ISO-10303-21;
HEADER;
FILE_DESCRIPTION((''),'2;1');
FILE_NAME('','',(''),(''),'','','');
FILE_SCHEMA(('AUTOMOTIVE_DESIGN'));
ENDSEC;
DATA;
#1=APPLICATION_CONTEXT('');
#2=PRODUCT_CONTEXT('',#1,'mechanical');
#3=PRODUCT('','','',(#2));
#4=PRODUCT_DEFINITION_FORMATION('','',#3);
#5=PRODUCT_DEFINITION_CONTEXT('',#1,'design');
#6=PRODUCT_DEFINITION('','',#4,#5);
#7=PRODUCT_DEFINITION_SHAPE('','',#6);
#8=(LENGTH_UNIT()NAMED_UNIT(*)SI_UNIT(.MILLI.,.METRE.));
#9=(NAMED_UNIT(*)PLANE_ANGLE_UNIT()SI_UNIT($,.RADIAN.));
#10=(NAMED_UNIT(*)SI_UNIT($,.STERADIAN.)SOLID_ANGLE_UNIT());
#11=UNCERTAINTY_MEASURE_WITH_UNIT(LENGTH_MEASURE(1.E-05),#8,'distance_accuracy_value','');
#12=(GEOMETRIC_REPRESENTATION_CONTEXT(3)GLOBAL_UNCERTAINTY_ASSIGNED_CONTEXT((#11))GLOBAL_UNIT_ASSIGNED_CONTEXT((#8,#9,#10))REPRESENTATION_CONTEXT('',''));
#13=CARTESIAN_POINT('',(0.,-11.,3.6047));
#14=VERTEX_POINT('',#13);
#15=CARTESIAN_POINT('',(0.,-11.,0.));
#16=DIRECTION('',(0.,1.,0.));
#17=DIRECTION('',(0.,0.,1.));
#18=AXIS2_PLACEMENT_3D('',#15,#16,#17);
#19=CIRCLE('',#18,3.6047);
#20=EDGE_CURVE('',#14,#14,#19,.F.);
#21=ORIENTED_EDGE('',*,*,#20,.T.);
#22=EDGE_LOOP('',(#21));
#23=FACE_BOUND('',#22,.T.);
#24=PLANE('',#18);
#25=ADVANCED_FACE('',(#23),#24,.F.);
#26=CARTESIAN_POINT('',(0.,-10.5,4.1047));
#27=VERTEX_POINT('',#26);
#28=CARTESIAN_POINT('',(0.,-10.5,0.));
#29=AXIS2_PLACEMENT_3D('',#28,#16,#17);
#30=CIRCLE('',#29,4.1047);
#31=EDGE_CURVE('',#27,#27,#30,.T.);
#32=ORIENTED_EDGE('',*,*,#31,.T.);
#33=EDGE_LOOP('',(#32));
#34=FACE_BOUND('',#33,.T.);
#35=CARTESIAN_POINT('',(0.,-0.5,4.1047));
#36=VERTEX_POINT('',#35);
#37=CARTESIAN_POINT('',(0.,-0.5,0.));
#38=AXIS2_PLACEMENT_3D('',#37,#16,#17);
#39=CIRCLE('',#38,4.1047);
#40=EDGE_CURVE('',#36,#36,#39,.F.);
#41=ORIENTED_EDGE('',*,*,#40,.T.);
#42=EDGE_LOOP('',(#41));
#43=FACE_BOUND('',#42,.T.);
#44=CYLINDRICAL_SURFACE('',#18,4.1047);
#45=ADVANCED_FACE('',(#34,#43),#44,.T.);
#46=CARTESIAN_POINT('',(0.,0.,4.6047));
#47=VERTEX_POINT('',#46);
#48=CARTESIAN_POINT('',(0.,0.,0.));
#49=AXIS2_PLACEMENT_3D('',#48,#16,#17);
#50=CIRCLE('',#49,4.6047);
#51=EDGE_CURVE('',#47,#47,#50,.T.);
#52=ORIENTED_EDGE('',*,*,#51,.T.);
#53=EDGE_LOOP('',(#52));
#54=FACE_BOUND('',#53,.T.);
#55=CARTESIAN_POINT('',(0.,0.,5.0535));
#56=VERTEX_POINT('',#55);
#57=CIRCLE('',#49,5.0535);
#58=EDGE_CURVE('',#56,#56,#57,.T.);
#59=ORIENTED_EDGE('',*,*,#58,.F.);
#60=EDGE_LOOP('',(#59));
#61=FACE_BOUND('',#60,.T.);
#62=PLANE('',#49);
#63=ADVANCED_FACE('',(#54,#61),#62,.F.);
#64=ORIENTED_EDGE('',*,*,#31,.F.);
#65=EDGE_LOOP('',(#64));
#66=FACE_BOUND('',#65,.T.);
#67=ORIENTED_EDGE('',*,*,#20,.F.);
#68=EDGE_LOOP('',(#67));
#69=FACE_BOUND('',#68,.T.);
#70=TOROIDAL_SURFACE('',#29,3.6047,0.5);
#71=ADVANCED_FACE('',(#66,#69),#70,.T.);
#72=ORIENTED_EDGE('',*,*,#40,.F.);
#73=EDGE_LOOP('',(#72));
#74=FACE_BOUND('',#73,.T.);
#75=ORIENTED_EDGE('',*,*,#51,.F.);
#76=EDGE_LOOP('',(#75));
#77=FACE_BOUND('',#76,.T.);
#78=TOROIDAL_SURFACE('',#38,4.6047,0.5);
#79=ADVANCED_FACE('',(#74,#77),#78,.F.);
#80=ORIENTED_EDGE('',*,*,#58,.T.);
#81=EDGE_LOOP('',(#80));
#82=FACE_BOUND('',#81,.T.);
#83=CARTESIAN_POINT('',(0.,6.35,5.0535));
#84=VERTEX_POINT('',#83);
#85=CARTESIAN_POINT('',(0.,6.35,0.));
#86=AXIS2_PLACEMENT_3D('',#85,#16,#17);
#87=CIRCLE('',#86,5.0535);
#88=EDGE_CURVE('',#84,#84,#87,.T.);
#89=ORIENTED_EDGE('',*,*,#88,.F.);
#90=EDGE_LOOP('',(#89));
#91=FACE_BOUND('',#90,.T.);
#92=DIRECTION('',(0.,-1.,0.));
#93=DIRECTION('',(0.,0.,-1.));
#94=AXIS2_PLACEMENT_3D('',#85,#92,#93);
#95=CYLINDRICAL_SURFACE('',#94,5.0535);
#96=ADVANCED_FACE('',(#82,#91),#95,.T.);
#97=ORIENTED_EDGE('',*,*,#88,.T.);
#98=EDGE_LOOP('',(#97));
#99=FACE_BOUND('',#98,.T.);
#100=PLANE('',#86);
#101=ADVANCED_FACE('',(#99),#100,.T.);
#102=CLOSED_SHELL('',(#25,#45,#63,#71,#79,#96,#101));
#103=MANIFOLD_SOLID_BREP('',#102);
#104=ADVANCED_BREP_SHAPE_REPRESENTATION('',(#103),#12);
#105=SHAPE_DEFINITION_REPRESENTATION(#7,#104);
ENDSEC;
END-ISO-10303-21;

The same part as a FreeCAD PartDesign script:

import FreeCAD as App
import Part
import Sketcher

V = App.Vector
Q = App.Units.Quantity


def edges_at(feature, points):
    """Names of the edges that pass closest to the given points."""
    edges = feature.Shape.Edges
    near = lambda p: min(range(len(edges)), key=lambda i: edges[i].distToShape(Part.Vertex(*p))[0])
    return sorted({f"Edge{near(p) + 1}" for p in points})

doc = App.newDocument("Part")
body = doc.addObject("PartDesign::Body", "Body")

sketch1 = body.newObject("Sketcher::SketchObject", "Sketch")
sketch1.AttachmentSupport = (doc.getObject("XZ_Plane"), [""])
sketch1.MapMode = "FlatFace"
sketch1.addGeometry(Part.Circle(V(0, 0, 0), V(0, 0, 1), 5.0535), False)
sketch1.addConstraint([
    Sketcher.Constraint("Coincident", 0, 3, -1, 1),
    Sketcher.Constraint("Diameter", 0, Q("10.107 mm")),
])
pad1 = body.newObject("PartDesign::Pad", "Pad")
pad1.Profile = sketch1
pad1.Length = 6.35
pad1.Reversed = True

sketch2 = body.newObject("Sketcher::SketchObject", "Sketch001")
sketch2.AttachmentSupport = (doc.getObject("XZ_Plane"), [""])
sketch2.MapMode = "FlatFace"
sketch2.addGeometry(Part.Circle(V(0, 0, 0), V(0, 0, 1), 4.1047), False)
sketch2.addConstraint([
    Sketcher.Constraint("Coincident", 0, 3, -1, 1),
    Sketcher.Constraint("Diameter", 0, Q("8.2094 mm")),
])
pad2 = body.newObject("PartDesign::Pad", "Pad001")
pad2.Profile = sketch2
pad2.Length = 11
doc.recompute()

fillet = body.newObject("PartDesign::Fillet", "Fillet")
fillet.Base = (pad2, edges_at(pad2, [(0, -11, -4.105), (0, 0, -4.105)]))
fillet.Radius = 0.5

doc.recompute()
